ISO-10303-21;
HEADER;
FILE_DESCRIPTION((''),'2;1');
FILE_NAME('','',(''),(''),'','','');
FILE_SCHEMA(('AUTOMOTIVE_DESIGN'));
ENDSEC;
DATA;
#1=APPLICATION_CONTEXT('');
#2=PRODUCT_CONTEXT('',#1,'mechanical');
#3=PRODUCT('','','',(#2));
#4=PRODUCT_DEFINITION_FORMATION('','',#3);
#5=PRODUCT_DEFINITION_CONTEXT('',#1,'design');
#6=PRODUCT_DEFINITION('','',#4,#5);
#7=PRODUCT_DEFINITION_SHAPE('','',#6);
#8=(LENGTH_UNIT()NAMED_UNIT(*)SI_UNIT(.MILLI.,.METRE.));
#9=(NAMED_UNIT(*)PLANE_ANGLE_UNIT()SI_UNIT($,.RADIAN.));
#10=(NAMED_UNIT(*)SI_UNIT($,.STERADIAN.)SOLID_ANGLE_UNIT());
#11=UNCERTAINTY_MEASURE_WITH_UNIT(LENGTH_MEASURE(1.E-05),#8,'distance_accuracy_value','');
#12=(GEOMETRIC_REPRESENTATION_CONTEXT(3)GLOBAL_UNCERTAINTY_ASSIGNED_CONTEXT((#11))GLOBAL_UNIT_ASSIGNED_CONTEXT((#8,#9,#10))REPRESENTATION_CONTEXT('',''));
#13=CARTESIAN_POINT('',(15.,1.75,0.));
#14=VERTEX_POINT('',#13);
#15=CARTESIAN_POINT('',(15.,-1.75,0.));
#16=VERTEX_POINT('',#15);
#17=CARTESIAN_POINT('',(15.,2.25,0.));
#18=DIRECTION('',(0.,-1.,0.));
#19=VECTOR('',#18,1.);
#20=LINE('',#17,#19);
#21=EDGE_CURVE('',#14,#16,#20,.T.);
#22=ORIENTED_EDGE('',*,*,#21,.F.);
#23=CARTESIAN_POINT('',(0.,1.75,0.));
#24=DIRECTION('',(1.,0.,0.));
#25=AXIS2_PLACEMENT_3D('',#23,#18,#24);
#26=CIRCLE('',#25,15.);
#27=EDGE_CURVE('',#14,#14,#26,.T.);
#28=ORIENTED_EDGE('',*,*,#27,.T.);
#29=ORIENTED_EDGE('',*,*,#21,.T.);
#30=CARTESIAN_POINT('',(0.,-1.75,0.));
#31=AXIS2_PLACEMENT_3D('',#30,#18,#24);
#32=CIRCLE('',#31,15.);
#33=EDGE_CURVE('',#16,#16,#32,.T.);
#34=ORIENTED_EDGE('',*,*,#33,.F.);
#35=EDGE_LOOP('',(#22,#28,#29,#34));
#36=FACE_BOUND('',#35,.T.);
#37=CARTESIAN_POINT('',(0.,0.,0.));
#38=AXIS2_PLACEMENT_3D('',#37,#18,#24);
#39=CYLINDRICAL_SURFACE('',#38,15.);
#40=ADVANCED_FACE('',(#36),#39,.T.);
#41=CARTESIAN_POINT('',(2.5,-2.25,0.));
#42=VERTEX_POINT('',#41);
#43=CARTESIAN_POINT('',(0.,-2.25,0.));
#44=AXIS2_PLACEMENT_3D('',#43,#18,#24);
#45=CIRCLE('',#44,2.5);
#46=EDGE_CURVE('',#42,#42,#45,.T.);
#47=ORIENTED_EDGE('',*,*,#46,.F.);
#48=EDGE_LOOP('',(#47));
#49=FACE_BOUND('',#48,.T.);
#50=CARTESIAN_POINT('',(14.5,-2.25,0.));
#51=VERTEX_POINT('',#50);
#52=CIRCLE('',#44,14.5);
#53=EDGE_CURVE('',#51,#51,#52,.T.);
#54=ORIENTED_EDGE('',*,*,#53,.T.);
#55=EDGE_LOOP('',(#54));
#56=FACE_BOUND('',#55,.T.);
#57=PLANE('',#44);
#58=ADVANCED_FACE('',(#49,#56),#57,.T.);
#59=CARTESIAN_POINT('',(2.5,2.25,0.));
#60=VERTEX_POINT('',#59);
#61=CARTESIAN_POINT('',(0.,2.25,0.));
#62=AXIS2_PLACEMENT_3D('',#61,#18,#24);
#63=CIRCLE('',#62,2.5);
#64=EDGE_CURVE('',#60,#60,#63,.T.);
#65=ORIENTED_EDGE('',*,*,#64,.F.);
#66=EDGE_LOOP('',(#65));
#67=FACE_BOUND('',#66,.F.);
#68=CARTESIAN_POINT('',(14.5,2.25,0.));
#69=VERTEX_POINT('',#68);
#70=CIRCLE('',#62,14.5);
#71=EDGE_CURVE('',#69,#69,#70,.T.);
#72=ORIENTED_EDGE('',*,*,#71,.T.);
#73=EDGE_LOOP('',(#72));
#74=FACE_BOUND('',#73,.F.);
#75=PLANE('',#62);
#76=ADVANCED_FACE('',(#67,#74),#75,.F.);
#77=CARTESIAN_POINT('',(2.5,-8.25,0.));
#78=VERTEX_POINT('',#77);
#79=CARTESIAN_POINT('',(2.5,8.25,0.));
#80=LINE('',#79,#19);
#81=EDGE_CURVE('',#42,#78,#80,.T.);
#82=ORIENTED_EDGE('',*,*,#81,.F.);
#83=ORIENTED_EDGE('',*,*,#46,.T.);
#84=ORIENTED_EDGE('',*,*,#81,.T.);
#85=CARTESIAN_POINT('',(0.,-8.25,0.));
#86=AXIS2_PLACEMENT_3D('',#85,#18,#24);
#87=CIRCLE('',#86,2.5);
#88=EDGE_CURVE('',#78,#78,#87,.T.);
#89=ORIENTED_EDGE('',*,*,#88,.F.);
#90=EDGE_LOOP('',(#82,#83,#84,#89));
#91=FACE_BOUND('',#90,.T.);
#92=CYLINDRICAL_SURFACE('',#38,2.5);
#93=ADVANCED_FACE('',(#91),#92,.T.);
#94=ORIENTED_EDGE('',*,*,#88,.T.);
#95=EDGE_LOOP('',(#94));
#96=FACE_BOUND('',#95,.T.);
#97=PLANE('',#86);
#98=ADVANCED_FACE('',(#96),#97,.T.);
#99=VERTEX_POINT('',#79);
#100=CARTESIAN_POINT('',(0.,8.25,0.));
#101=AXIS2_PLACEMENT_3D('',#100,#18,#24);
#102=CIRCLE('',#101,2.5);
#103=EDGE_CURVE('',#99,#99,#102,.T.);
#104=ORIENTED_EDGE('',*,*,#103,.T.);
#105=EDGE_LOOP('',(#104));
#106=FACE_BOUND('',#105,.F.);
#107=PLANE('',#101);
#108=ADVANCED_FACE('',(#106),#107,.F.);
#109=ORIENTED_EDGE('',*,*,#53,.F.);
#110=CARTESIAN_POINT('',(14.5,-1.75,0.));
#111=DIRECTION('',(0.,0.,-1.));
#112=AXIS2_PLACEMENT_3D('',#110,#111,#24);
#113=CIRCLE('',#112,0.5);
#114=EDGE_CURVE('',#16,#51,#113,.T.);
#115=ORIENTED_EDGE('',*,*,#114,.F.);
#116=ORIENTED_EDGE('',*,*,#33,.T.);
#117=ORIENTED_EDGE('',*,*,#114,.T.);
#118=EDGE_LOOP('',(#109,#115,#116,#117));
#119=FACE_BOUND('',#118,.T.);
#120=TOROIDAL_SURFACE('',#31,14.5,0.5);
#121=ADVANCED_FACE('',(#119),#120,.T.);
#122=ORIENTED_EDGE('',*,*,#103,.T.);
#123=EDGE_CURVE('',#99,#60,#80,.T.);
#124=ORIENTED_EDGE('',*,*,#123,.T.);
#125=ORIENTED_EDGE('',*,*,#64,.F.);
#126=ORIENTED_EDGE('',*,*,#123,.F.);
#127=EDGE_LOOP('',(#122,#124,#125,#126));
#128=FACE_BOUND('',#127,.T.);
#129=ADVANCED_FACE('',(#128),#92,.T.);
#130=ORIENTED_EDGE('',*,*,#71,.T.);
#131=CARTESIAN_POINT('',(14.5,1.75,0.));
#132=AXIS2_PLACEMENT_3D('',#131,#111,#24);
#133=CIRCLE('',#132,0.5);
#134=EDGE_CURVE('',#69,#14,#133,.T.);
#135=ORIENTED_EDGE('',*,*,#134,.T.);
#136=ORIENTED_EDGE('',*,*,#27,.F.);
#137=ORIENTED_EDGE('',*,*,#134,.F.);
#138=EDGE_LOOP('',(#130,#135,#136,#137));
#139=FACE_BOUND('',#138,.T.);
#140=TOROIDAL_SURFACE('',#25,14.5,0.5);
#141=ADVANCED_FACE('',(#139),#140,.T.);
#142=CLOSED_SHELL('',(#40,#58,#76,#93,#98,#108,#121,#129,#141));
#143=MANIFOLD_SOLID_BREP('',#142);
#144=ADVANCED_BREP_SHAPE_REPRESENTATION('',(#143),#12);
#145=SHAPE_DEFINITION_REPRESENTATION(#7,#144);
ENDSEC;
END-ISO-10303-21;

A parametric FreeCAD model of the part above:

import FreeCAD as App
import Part
import Sketcher
from FreeCAD import Vector


def edges_at(feature, points):
    """Names of the edges that pass closest to the given points."""
    edges = feature.Shape.Edges
    near = lambda p: min(range(len(edges)), key=lambda i: edges[i].distToShape(Part.Vertex(*p))[0])
    return sorted({f"Edge{near(p) + 1}" for p in points})

doc = App.newDocument("Part")
body = doc.addObject("PartDesign::Body", "Body")

# Sketch on XZ plane
sketch1 = body.newObject("Sketcher::SketchObject", "Sketch")
sketch1.AttachmentSupport = (doc.getObject("XZ_Plane"), [""])
sketch1.MapMode = "FlatFace"
sketch1.addGeometry([
    Part.Circle(Vector(0, 0, 0), Vector(0, 0, 1), 15),
    Part.Circle(Vector(0, 0, 0), Vector(0, 0, 1), 2.5),
], False)
sketch1.addConstraint([
    Sketcher.Constraint("Coincident", 0, 3, -1, 1),
    Sketcher.Constraint("Coincident", 1, 3, -1, 1),
    Sketcher.Constraint("Diameter", 0, 30.0),
    Sketcher.Constraint("Diameter", 1, 5.0),
])
pad1 = body.newObject("PartDesign::Pad", "Pad")
pad1.Profile = sketch1
pad1.Length = 4.5
pad1.Midplane = True

# Sketch on XZ plane
sketch2 = body.newObject("Sketcher::SketchObject", "Sketch001")
sketch2.AttachmentSupport = (doc.getObject("XZ_Plane"), [""])
sketch2.MapMode = "FlatFace"
sketch2.addGeometry(Part.Circle(Vector(0, 0, 0), Vector(0, 0, 1), 2.5), False)
sketch2.addConstraint([
    Sketcher.Constraint("Coincident", 0, 3, -1, 1),
    Sketcher.Constraint("Diameter", 0, 5.0),
])
pad2 = body.newObject("PartDesign::Pad", "Pad001")
pad2.Profile = sketch2
pad2.Length = 16.5
pad2.Midplane = True
doc.recompute()

fillet = body.newObject("PartDesign::Fillet", "Fillet")
fillet.Base = (pad2, edges_at(pad2, [(-15, -2.25, 0), (-15, 2.25, 0)]))
fillet.Radius = 0.5

doc.recompute()
